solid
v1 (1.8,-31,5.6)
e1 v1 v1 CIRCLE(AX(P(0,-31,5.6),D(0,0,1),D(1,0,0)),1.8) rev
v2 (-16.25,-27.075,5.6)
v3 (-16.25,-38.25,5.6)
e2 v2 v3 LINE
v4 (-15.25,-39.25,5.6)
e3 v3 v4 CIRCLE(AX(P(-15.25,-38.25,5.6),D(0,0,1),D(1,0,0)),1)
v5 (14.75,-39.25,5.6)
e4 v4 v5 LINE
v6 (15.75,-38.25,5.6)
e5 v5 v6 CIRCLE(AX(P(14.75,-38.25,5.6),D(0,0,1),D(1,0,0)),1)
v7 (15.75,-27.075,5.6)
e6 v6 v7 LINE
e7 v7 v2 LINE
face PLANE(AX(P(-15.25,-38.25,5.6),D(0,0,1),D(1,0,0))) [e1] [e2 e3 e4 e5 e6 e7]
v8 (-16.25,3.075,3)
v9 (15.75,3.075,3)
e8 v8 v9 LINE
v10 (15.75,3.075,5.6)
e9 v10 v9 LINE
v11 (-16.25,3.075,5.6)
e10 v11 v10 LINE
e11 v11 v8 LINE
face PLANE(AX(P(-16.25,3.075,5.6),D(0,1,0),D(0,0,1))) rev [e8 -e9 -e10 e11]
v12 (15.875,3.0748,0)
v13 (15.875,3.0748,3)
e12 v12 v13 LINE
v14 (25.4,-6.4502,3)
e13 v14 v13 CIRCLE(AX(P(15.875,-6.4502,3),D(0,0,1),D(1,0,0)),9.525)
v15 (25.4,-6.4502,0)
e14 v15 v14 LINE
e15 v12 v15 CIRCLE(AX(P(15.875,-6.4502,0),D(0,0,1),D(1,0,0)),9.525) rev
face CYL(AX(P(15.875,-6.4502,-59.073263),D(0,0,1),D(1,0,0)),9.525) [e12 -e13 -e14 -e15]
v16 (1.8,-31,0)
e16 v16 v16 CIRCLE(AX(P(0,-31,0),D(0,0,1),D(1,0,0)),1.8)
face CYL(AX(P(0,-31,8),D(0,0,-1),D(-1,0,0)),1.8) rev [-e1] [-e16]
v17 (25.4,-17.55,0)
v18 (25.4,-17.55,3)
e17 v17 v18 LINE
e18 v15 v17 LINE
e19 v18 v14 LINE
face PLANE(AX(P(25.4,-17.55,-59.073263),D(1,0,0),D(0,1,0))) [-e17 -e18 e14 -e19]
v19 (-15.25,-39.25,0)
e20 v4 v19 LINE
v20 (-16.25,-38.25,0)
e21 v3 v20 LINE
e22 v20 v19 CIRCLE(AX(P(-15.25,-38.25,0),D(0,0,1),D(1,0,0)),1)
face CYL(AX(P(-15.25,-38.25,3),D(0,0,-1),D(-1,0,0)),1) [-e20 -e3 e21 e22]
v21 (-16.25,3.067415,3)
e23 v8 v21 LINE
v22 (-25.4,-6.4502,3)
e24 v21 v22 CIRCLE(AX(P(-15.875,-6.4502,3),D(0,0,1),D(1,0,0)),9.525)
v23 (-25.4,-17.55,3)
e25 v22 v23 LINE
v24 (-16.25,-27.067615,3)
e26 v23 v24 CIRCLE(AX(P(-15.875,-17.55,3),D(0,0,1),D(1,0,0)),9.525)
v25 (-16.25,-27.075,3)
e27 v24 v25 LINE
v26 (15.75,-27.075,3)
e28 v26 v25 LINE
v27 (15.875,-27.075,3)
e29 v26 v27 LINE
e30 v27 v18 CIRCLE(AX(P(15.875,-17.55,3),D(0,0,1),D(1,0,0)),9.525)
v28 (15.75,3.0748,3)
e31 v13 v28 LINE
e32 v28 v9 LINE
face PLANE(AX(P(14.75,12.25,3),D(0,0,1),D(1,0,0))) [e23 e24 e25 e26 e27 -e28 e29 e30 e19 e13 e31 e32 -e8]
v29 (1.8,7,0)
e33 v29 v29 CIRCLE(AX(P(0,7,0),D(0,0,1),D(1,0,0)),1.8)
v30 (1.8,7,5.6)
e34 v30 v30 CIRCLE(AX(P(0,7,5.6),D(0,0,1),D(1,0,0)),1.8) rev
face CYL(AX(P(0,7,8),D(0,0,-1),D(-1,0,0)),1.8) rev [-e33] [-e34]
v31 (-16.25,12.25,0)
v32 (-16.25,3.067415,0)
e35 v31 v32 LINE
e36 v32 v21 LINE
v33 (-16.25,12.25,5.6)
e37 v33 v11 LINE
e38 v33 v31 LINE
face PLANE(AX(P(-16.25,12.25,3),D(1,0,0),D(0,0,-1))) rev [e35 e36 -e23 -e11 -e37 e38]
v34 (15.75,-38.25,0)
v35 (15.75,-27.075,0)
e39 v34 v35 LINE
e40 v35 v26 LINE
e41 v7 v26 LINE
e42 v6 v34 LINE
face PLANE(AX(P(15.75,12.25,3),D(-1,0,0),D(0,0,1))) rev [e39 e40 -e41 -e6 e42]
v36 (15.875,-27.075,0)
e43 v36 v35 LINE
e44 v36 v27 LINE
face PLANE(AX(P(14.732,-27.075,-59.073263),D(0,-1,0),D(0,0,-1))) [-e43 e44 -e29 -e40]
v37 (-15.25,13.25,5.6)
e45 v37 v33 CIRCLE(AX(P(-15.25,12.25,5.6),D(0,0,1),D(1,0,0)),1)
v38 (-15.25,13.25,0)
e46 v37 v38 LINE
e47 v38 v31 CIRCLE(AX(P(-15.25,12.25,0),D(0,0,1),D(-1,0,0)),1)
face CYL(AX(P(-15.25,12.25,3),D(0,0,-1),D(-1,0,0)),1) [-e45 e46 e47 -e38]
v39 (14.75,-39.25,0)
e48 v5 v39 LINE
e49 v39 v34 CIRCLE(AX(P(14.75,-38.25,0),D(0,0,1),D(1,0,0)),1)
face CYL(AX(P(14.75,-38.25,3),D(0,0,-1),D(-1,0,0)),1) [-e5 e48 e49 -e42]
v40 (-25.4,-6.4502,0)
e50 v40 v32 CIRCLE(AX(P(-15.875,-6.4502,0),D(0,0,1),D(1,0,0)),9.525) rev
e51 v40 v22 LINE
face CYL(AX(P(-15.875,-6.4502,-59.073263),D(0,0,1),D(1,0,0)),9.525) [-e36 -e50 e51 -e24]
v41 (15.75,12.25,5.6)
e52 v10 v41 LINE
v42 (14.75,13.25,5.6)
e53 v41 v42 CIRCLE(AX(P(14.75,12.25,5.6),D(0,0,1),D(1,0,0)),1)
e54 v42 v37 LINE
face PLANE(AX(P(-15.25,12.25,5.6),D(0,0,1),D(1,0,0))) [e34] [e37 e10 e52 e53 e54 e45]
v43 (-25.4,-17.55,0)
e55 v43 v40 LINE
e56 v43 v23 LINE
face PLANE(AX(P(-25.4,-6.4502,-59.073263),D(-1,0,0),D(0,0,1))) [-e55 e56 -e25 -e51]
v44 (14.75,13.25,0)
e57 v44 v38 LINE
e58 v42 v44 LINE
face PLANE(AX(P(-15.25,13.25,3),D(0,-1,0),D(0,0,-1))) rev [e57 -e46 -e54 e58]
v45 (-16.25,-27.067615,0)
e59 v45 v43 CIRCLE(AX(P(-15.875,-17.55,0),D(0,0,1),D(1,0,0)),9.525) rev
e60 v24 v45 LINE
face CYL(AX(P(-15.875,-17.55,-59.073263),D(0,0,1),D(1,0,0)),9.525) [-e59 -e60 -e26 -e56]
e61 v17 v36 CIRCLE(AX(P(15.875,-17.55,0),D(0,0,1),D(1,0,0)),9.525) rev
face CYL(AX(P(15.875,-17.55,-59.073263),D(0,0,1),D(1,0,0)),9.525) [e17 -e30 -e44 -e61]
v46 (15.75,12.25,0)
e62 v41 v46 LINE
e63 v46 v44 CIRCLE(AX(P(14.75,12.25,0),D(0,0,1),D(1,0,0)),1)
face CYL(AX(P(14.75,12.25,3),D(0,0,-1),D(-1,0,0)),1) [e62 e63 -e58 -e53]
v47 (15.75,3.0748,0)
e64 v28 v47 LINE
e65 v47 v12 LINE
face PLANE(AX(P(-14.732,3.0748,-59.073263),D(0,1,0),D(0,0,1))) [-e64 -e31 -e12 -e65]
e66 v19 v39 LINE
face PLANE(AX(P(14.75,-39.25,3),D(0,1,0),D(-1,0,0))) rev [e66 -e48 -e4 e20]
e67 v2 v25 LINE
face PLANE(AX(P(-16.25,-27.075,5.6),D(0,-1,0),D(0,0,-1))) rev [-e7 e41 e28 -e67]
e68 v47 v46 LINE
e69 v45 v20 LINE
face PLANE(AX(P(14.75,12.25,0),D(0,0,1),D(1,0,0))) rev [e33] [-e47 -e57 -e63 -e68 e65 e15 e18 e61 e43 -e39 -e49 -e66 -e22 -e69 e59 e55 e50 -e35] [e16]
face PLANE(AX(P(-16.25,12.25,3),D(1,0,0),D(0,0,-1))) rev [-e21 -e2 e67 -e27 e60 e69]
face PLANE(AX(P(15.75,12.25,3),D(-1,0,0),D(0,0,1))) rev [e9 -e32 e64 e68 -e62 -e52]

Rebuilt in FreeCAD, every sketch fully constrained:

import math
import FreeCAD as App
import Part
import Sketcher

V = App.Vector

doc = App.newDocument("Part")
body = doc.addObject("PartDesign::Body", "Body")

# Sketch on XY plane
sketch1 = doc.addObject("Sketcher::SketchObject", "Sketch")
body.addObject(sketch1)
sketch1.AttachmentSupport = (doc.XY_Plane, [""])
sketch1.MapMode = "FlatFace"
sketch1.addGeometry(Part.LineSegment(V(14.75, 13.25, 0), V(-15.25, 13.25, 0)), False)
sketch1.addGeometry(Part.ArcOfCircle(Part.Circle(V(-15.25, 12.25, 0), V(0, 0, 1), 1), math.radians(90), math.radians(180)), False)
sketch1.addGeometry(Part.LineSegment(V(-16.25, 12.25, 0), V(-16.25, -38.25, 0)), False)
sketch1.addGeometry(Part.ArcOfCircle(Part.Circle(V(-15.25, -38.25, 0), V(0, 0, 1), 1), math.radians(-180), math.radians(-90)), False)
sketch1.addGeometry(Part.LineSegment(V(-15.25, -39.25, 0), V(14.75, -39.25, 0)), False)
sketch1.addGeometry(Part.ArcOfCircle(Part.Circle(V(14.75, -38.25, 0), V(0, 0, 1), 1), math.radians(-90), math.radians(0)), False)
sketch1.addGeometry(Part.LineSegment(V(15.75, -38.25, 0), V(15.75, 12.25, 0)), False)
sketch1.addGeometry(Part.ArcOfCircle(Part.Circle(V(14.75, 12.25, 0), V(0, 0, 1), 1), math.radians(0), math.radians(90)), False)
sketch1.addConstraint(Sketcher.Constraint("Tangent", 0, 2, 1, 1))
sketch1.addConstraint(Sketcher.Constraint("Tangent", 1, 2, 2, 1))
sketch1.addConstraint(Sketcher.Constraint("Tangent", 2, 2, 3, 1))
sketch1.addConstraint(Sketcher.Constraint("Tangent", 3, 2, 4, 1))
sketch1.addConstraint(Sketcher.Constraint("Tangent", 4, 2, 5, 1))
sketch1.addConstraint(Sketcher.Constraint("Tangent", 5, 2, 6, 1))
sketch1.addConstraint(Sketcher.Constraint("Tangent", 6, 2, 7, 1))
sketch1.addConstraint(Sketcher.Constraint("Tangent", 7, 2, 0, 1))
sketch1.addConstraint(Sketcher.Constraint("Horizontal", 0))
sketch1.addConstraint(Sketcher.Constraint("Vertical", 2))
sketch1.addConstraint(Sketcher.Constraint("Horizontal", 4))
sketch1.addConstraint(Sketcher.Constraint("Vertical", 6))
sketch1.addConstraint(Sketcher.Constraint("Equal", 1, 3))
sketch1.addConstraint(Sketcher.Constraint("Equal", 3, 5))
sketch1.addConstraint(Sketcher.Constraint("Equal", 5, 7))
sketch1.addConstraint(Sketcher.Constraint("Radius", 1, 1.0))
sketch1.addConstraint(Sketcher.Constraint("DistanceX", 0, 2, 0, 1, 30.0))
sketch1.addConstraint(Sketcher.Constraint("DistanceY", 2, 2, 2, 1, 50.5))
sketch1.addConstraint(Sketcher.Constraint("DistanceX", 1, 3, -1, 1, 15.25))
sketch1.addConstraint(Sketcher.Constraint("DistanceY", -1, 1, 1, 3, 12.25))
pad1 = doc.addObject("PartDesign::Pad", "Pad")
body.addObject(pad1)
pad1.Profile = sketch1
pad1.Length = 3

# Sketch on XY plane
sketch2 = doc.addObject("Sketcher::SketchObject", "Sketch001")
body.addObject(sketch2)
sketch2.AttachmentSupport = (doc.XY_Plane, [""])
sketch2.MapMode = "FlatFace"
sketch2.AttachmentOffset = App.Placement(V(0, 0, 3), App.Rotation())
sketch2.addGeometry(Part.LineSegment(V(15.75, -38.25, 0), V(15.75, -27.075, 0)), False)
sketch2.addGeometry(Part.LineSegment(V(15.75, -27.075, 0), V(-16.25, -27.075, 0)), False)
sketch2.addGeometry(Part.LineSegment(V(-16.25, -27.075, 0), V(-16.25, -38.25, 0)), False)
sketch2.addGeometry(Part.ArcOfCircle(Part.Circle(V(-15.25, -38.25, 0), V(0, 0, 1), 1), math.radians(-180), math.radians(-90)), False)
sketch2.addGeometry(Part.LineSegment(V(-15.25, -39.25, 0), V(14.75, -39.25, 0)), False)
sketch2.addGeometry(Part.ArcOfCircle(Part.Circle(V(14.75, -38.25, 0), V(0, 0, 1), 1), math.radians(-90), math.radians(0)), False)
sketch2.addGeometry(Part.LineSegment(V(14.75, 13.25, 0), V(-15.25, 13.25, 0)), False)
sketch2.addGeometry(Part.ArcOfCircle(Part.Circle(V(-15.25, 12.25, 0), V(0, 0, 1), 1), math.radians(90), math.radians(180)), False)
sketch2.addGeometry(Part.LineSegment(V(-16.25, 12.25, 0), V(-16.25, 3.075, 0)), False)
sketch2.addGeometry(Part.LineSegment(V(-16.25, 3.075, 0), V(15.75, 3.075, 0)), False)
sketch2.addGeometry(Part.LineSegment(V(15.75, 3.075, 0), V(15.75, 12.25, 0)), False)
sketch2.addGeometry(Part.ArcOfCircle(Part.Circle(V(14.75, 12.25, 0), V(0, 0, 1), 1), math.radians(0), math.radians(90)), False)
sketch2.addConstraint(Sketcher.Constraint("Coincident", 0, 2, 1, 1))
sketch2.addConstraint(Sketcher.Constraint("Coincident", 1, 2, 2, 1))
sketch2.addConstraint(Sketcher.Constraint("Tangent", 2, 2, 3, 1))
sketch2.addConstraint(Sketcher.Constraint("Tangent", 3, 2, 4, 1))
sketch2.addConstraint(Sketcher.Constraint("Tangent", 4, 2, 5, 1))
sketch2.addConstraint(Sketcher.Constraint("Tangent", 5, 2, 0, 1))
sketch2.addConstraint(Sketcher.Constraint("Tangent", 6, 2, 7, 1))
sketch2.addConstraint(Sketcher.Constraint("Tangent", 7, 2, 8, 1))
sketch2.addConstraint(Sketcher.Constraint("Coincident", 8, 2, 9, 1))
sketch2.addConstraint(Sketcher.Constraint("Coincident", 9, 2, 10, 1))
sketch2.addConstraint(Sketcher.Constraint("Tangent", 10, 2, 11, 1))
sketch2.addConstraint(Sketcher.Constraint("Tangent", 11, 2, 6, 1))
sketch2.addConstraint(Sketcher.Constraint("Vertical", 0))
sketch2.addConstraint(Sketcher.Constraint("Horizontal", 1))
sketch2.addConstraint(Sketcher.Constraint("Vertical", 2))
sketch2.addConstraint(Sketcher.Constraint("Horizontal", 4))
sketch2.addConstraint(Sketcher.Constraint("Horizontal", 6))
sketch2.addConstraint(Sketcher.Constraint("Vertical", 8))
sketch2.addConstraint(Sketcher.Constraint("Horizontal", 9))
sketch2.addConstraint(Sketcher.Constraint("Vertical", 10))
sketch2.addConstraint(Sketcher.Constraint("Equal", 3, 5))
sketch2.addConstraint(Sketcher.Constraint("Equal", 5, 7))
sketch2.addConstraint(Sketcher.Constraint("Equal", 7, 11))
sketch2.addConstraint(Sketcher.Constraint("Vertical", 3, 3, 7, 3))
sketch2.addConstraint(Sketcher.Constraint("Vertical", 5, 3, 11, 3))
sketch2.addConstraint(Sketcher.Constraint("Radius", 3, 1.0))
sketch2.addConstraint(Sketcher.Constraint("DistanceX", 1, 2, 1, 1, 32.0))
sketch2.addConstraint(Sketcher.Constraint("DistanceY", 3, 3, 7, 3, 50.5))
sketch2.addConstraint(Sketcher.Constraint("DistanceY", 0, 1, 0, 2, 11.175))
sketch2.addConstraint(Sketcher.Constraint("DistanceY", 8, 2, 8, 1, 9.175))
sketch2.addConstraint(Sketcher.Constraint("DistanceX", 3, 3, -1, 1, 15.25))
sketch2.addConstraint(Sketcher.Constraint("DistanceY", 3, 3, -1, 1, 38.25))
pad2 = doc.addObject("PartDesign::Pad", "Pad001")
body.addObject(pad2)
pad2.Profile = sketch2
pad2.Length = 2.6

# Sketch on XY plane
sketch3 = doc.addObject("Sketcher::SketchObject", "Sketch002")
body.addObject(sketch3)
sketch3.AttachmentSupport = (doc.XY_Plane, [""])
sketch3.MapMode = "FlatFace"
sketch3.AttachmentOffset = App.Placement(V(0, 0, 3), App.Rotation())
sketch3.addGeometry(Part.ArcOfCircle(Part.Circle(V(15.875, -6.4502, 0), V(0, 0, 1), 9.525), math.radians(0), math.radians(90)), False)
sketch3.addGeometry(Part.LineSegment(V(15.875, 3.0748, 0), V(-15.875, 3.0748, 0)), False)
sketch3.addGeometry(Part.ArcOfCircle(Part.Circle(V(-15.875, -6.4502, 0), V(0, 0, 1), 9.525), math.radians(90), math.radians(180)), False)
sketch3.addGeometry(Part.LineSegment(V(-25.4, -6.4502, 0), V(-25.4, -17.55, 0)), False)
sketch3.addGeometry(Part.ArcOfCircle(Part.Circle(V(-15.875, -17.55, 0), V(0, 0, 1), 9.525), math.radians(180), math.radians(270)), False)
sketch3.addGeometry(Part.LineSegment(V(-15.875, -27.075, 0), V(15.875, -27.075, 0)), False)
sketch3.addGeometry(Part.ArcOfCircle(Part.Circle(V(15.875, -17.55, 0), V(0, 0, 1), 9.525), math.radians(-90), math.radians(0)), False)
sketch3.addGeometry(Part.LineSegment(V(25.4, -17.55, 0), V(25.4, -6.4502, 0)), False)
sketch3.addConstraint(Sketcher.Constraint("Tangent", 0, 2, 1, 1))
sketch3.addConstraint(Sketcher.Constraint("Tangent", 1, 2, 2, 1))
sketch3.addConstraint(Sketcher.Constraint("Tangent", 2, 2, 3, 1))
sketch3.addConstraint(Sketcher.Constraint("Tangent", 3, 2, 4, 1))
sketch3.addConstraint(Sketcher.Constraint("Tangent", 4, 2, 5, 1))
sketch3.addConstraint(Sketcher.Constraint("Tangent", 5, 2, 6, 1))
sketch3.addConstraint(Sketcher.Constraint("Tangent", 6, 2, 7, 1))
sketch3.addConstraint(Sketcher.Constraint("Tangent", 7, 2, 0, 1))
sketch3.addConstraint(Sketcher.Constraint("Horizontal", 1))
sketch3.addConstraint(Sketcher.Constraint("Vertical", 3))
sketch3.addConstraint(Sketcher.Constraint("Horizontal", 5))
sketch3.addConstraint(Sketcher.Constraint("Vertical", 7))
sketch3.addConstraint(Sketcher.Constraint("Equal", 0, 2))
sketch3.addConstraint(Sketcher.Constraint("Equal", 2, 4))
sketch3.addConstraint(Sketcher.Constraint("Equal", 4, 6))
sketch3.addConstraint(Sketcher.Constraint("Radius", 0, 9.525))
sketch3.addConstraint(Sketcher.Constraint("DistanceX", 1, 2, 1, 1, 31.75))
sketch3.addConstraint(Sketcher.Constraint("DistanceX", 2, 2, -1, 1, 25.4))
sketch3.addConstraint(Sketcher.Constraint("DistanceY", 4, 3, -1, 1, 17.55))
sketch3.addConstraint(Sketcher.Constraint("DistanceY", 3, 2, 3, 1, 11.0998))
pad3 = doc.addObject("PartDesign::Pad", "Pad002")
body.addObject(pad3)
pad3.Profile = sketch3
pad3.Length = 3
pad3.Reversed = True

# Sketch on XY plane
sketch4 = doc.addObject("Sketcher::SketchObject", "Sketch003")
body.addObject(sketch4)
sketch4.AttachmentSupport = (doc.XY_Plane, [""])
sketch4.MapMode = "FlatFace"
sketch4.addGeometry(Part.Circle(V(0, 7, 0), V(0, 0, 1), 1.8), False)
sketch4.addGeometry(Part.Circle(V(0, -31, 0), V(0, 0, 1), 1.8), False)
sketch4.addConstraint(Sketcher.Constraint("Equal", 0, 1))
sketch4.addConstraint(Sketcher.Constraint("PointOnObject", 0, 3, -2))
sketch4.addConstraint(Sketcher.Constraint("PointOnObject", 1, 3, -2))
sketch4.addConstraint(Sketcher.Constraint("Diameter", 0, 3.6))
sketch4.addConstraint(Sketcher.Constraint("DistanceY", -1, 1, 0, 3, 7.0))
sketch4.addConstraint(Sketcher.Constraint("DistanceY", 1, 3, -1, 1, 31.0))
pocket1 = doc.addObject("PartDesign::Pocket", "Pocket")
body.addObject(pocket1)
pocket1.Profile = sketch4
pocket1.Length = 8
pocket1.Reversed = True

doc.recompute()
